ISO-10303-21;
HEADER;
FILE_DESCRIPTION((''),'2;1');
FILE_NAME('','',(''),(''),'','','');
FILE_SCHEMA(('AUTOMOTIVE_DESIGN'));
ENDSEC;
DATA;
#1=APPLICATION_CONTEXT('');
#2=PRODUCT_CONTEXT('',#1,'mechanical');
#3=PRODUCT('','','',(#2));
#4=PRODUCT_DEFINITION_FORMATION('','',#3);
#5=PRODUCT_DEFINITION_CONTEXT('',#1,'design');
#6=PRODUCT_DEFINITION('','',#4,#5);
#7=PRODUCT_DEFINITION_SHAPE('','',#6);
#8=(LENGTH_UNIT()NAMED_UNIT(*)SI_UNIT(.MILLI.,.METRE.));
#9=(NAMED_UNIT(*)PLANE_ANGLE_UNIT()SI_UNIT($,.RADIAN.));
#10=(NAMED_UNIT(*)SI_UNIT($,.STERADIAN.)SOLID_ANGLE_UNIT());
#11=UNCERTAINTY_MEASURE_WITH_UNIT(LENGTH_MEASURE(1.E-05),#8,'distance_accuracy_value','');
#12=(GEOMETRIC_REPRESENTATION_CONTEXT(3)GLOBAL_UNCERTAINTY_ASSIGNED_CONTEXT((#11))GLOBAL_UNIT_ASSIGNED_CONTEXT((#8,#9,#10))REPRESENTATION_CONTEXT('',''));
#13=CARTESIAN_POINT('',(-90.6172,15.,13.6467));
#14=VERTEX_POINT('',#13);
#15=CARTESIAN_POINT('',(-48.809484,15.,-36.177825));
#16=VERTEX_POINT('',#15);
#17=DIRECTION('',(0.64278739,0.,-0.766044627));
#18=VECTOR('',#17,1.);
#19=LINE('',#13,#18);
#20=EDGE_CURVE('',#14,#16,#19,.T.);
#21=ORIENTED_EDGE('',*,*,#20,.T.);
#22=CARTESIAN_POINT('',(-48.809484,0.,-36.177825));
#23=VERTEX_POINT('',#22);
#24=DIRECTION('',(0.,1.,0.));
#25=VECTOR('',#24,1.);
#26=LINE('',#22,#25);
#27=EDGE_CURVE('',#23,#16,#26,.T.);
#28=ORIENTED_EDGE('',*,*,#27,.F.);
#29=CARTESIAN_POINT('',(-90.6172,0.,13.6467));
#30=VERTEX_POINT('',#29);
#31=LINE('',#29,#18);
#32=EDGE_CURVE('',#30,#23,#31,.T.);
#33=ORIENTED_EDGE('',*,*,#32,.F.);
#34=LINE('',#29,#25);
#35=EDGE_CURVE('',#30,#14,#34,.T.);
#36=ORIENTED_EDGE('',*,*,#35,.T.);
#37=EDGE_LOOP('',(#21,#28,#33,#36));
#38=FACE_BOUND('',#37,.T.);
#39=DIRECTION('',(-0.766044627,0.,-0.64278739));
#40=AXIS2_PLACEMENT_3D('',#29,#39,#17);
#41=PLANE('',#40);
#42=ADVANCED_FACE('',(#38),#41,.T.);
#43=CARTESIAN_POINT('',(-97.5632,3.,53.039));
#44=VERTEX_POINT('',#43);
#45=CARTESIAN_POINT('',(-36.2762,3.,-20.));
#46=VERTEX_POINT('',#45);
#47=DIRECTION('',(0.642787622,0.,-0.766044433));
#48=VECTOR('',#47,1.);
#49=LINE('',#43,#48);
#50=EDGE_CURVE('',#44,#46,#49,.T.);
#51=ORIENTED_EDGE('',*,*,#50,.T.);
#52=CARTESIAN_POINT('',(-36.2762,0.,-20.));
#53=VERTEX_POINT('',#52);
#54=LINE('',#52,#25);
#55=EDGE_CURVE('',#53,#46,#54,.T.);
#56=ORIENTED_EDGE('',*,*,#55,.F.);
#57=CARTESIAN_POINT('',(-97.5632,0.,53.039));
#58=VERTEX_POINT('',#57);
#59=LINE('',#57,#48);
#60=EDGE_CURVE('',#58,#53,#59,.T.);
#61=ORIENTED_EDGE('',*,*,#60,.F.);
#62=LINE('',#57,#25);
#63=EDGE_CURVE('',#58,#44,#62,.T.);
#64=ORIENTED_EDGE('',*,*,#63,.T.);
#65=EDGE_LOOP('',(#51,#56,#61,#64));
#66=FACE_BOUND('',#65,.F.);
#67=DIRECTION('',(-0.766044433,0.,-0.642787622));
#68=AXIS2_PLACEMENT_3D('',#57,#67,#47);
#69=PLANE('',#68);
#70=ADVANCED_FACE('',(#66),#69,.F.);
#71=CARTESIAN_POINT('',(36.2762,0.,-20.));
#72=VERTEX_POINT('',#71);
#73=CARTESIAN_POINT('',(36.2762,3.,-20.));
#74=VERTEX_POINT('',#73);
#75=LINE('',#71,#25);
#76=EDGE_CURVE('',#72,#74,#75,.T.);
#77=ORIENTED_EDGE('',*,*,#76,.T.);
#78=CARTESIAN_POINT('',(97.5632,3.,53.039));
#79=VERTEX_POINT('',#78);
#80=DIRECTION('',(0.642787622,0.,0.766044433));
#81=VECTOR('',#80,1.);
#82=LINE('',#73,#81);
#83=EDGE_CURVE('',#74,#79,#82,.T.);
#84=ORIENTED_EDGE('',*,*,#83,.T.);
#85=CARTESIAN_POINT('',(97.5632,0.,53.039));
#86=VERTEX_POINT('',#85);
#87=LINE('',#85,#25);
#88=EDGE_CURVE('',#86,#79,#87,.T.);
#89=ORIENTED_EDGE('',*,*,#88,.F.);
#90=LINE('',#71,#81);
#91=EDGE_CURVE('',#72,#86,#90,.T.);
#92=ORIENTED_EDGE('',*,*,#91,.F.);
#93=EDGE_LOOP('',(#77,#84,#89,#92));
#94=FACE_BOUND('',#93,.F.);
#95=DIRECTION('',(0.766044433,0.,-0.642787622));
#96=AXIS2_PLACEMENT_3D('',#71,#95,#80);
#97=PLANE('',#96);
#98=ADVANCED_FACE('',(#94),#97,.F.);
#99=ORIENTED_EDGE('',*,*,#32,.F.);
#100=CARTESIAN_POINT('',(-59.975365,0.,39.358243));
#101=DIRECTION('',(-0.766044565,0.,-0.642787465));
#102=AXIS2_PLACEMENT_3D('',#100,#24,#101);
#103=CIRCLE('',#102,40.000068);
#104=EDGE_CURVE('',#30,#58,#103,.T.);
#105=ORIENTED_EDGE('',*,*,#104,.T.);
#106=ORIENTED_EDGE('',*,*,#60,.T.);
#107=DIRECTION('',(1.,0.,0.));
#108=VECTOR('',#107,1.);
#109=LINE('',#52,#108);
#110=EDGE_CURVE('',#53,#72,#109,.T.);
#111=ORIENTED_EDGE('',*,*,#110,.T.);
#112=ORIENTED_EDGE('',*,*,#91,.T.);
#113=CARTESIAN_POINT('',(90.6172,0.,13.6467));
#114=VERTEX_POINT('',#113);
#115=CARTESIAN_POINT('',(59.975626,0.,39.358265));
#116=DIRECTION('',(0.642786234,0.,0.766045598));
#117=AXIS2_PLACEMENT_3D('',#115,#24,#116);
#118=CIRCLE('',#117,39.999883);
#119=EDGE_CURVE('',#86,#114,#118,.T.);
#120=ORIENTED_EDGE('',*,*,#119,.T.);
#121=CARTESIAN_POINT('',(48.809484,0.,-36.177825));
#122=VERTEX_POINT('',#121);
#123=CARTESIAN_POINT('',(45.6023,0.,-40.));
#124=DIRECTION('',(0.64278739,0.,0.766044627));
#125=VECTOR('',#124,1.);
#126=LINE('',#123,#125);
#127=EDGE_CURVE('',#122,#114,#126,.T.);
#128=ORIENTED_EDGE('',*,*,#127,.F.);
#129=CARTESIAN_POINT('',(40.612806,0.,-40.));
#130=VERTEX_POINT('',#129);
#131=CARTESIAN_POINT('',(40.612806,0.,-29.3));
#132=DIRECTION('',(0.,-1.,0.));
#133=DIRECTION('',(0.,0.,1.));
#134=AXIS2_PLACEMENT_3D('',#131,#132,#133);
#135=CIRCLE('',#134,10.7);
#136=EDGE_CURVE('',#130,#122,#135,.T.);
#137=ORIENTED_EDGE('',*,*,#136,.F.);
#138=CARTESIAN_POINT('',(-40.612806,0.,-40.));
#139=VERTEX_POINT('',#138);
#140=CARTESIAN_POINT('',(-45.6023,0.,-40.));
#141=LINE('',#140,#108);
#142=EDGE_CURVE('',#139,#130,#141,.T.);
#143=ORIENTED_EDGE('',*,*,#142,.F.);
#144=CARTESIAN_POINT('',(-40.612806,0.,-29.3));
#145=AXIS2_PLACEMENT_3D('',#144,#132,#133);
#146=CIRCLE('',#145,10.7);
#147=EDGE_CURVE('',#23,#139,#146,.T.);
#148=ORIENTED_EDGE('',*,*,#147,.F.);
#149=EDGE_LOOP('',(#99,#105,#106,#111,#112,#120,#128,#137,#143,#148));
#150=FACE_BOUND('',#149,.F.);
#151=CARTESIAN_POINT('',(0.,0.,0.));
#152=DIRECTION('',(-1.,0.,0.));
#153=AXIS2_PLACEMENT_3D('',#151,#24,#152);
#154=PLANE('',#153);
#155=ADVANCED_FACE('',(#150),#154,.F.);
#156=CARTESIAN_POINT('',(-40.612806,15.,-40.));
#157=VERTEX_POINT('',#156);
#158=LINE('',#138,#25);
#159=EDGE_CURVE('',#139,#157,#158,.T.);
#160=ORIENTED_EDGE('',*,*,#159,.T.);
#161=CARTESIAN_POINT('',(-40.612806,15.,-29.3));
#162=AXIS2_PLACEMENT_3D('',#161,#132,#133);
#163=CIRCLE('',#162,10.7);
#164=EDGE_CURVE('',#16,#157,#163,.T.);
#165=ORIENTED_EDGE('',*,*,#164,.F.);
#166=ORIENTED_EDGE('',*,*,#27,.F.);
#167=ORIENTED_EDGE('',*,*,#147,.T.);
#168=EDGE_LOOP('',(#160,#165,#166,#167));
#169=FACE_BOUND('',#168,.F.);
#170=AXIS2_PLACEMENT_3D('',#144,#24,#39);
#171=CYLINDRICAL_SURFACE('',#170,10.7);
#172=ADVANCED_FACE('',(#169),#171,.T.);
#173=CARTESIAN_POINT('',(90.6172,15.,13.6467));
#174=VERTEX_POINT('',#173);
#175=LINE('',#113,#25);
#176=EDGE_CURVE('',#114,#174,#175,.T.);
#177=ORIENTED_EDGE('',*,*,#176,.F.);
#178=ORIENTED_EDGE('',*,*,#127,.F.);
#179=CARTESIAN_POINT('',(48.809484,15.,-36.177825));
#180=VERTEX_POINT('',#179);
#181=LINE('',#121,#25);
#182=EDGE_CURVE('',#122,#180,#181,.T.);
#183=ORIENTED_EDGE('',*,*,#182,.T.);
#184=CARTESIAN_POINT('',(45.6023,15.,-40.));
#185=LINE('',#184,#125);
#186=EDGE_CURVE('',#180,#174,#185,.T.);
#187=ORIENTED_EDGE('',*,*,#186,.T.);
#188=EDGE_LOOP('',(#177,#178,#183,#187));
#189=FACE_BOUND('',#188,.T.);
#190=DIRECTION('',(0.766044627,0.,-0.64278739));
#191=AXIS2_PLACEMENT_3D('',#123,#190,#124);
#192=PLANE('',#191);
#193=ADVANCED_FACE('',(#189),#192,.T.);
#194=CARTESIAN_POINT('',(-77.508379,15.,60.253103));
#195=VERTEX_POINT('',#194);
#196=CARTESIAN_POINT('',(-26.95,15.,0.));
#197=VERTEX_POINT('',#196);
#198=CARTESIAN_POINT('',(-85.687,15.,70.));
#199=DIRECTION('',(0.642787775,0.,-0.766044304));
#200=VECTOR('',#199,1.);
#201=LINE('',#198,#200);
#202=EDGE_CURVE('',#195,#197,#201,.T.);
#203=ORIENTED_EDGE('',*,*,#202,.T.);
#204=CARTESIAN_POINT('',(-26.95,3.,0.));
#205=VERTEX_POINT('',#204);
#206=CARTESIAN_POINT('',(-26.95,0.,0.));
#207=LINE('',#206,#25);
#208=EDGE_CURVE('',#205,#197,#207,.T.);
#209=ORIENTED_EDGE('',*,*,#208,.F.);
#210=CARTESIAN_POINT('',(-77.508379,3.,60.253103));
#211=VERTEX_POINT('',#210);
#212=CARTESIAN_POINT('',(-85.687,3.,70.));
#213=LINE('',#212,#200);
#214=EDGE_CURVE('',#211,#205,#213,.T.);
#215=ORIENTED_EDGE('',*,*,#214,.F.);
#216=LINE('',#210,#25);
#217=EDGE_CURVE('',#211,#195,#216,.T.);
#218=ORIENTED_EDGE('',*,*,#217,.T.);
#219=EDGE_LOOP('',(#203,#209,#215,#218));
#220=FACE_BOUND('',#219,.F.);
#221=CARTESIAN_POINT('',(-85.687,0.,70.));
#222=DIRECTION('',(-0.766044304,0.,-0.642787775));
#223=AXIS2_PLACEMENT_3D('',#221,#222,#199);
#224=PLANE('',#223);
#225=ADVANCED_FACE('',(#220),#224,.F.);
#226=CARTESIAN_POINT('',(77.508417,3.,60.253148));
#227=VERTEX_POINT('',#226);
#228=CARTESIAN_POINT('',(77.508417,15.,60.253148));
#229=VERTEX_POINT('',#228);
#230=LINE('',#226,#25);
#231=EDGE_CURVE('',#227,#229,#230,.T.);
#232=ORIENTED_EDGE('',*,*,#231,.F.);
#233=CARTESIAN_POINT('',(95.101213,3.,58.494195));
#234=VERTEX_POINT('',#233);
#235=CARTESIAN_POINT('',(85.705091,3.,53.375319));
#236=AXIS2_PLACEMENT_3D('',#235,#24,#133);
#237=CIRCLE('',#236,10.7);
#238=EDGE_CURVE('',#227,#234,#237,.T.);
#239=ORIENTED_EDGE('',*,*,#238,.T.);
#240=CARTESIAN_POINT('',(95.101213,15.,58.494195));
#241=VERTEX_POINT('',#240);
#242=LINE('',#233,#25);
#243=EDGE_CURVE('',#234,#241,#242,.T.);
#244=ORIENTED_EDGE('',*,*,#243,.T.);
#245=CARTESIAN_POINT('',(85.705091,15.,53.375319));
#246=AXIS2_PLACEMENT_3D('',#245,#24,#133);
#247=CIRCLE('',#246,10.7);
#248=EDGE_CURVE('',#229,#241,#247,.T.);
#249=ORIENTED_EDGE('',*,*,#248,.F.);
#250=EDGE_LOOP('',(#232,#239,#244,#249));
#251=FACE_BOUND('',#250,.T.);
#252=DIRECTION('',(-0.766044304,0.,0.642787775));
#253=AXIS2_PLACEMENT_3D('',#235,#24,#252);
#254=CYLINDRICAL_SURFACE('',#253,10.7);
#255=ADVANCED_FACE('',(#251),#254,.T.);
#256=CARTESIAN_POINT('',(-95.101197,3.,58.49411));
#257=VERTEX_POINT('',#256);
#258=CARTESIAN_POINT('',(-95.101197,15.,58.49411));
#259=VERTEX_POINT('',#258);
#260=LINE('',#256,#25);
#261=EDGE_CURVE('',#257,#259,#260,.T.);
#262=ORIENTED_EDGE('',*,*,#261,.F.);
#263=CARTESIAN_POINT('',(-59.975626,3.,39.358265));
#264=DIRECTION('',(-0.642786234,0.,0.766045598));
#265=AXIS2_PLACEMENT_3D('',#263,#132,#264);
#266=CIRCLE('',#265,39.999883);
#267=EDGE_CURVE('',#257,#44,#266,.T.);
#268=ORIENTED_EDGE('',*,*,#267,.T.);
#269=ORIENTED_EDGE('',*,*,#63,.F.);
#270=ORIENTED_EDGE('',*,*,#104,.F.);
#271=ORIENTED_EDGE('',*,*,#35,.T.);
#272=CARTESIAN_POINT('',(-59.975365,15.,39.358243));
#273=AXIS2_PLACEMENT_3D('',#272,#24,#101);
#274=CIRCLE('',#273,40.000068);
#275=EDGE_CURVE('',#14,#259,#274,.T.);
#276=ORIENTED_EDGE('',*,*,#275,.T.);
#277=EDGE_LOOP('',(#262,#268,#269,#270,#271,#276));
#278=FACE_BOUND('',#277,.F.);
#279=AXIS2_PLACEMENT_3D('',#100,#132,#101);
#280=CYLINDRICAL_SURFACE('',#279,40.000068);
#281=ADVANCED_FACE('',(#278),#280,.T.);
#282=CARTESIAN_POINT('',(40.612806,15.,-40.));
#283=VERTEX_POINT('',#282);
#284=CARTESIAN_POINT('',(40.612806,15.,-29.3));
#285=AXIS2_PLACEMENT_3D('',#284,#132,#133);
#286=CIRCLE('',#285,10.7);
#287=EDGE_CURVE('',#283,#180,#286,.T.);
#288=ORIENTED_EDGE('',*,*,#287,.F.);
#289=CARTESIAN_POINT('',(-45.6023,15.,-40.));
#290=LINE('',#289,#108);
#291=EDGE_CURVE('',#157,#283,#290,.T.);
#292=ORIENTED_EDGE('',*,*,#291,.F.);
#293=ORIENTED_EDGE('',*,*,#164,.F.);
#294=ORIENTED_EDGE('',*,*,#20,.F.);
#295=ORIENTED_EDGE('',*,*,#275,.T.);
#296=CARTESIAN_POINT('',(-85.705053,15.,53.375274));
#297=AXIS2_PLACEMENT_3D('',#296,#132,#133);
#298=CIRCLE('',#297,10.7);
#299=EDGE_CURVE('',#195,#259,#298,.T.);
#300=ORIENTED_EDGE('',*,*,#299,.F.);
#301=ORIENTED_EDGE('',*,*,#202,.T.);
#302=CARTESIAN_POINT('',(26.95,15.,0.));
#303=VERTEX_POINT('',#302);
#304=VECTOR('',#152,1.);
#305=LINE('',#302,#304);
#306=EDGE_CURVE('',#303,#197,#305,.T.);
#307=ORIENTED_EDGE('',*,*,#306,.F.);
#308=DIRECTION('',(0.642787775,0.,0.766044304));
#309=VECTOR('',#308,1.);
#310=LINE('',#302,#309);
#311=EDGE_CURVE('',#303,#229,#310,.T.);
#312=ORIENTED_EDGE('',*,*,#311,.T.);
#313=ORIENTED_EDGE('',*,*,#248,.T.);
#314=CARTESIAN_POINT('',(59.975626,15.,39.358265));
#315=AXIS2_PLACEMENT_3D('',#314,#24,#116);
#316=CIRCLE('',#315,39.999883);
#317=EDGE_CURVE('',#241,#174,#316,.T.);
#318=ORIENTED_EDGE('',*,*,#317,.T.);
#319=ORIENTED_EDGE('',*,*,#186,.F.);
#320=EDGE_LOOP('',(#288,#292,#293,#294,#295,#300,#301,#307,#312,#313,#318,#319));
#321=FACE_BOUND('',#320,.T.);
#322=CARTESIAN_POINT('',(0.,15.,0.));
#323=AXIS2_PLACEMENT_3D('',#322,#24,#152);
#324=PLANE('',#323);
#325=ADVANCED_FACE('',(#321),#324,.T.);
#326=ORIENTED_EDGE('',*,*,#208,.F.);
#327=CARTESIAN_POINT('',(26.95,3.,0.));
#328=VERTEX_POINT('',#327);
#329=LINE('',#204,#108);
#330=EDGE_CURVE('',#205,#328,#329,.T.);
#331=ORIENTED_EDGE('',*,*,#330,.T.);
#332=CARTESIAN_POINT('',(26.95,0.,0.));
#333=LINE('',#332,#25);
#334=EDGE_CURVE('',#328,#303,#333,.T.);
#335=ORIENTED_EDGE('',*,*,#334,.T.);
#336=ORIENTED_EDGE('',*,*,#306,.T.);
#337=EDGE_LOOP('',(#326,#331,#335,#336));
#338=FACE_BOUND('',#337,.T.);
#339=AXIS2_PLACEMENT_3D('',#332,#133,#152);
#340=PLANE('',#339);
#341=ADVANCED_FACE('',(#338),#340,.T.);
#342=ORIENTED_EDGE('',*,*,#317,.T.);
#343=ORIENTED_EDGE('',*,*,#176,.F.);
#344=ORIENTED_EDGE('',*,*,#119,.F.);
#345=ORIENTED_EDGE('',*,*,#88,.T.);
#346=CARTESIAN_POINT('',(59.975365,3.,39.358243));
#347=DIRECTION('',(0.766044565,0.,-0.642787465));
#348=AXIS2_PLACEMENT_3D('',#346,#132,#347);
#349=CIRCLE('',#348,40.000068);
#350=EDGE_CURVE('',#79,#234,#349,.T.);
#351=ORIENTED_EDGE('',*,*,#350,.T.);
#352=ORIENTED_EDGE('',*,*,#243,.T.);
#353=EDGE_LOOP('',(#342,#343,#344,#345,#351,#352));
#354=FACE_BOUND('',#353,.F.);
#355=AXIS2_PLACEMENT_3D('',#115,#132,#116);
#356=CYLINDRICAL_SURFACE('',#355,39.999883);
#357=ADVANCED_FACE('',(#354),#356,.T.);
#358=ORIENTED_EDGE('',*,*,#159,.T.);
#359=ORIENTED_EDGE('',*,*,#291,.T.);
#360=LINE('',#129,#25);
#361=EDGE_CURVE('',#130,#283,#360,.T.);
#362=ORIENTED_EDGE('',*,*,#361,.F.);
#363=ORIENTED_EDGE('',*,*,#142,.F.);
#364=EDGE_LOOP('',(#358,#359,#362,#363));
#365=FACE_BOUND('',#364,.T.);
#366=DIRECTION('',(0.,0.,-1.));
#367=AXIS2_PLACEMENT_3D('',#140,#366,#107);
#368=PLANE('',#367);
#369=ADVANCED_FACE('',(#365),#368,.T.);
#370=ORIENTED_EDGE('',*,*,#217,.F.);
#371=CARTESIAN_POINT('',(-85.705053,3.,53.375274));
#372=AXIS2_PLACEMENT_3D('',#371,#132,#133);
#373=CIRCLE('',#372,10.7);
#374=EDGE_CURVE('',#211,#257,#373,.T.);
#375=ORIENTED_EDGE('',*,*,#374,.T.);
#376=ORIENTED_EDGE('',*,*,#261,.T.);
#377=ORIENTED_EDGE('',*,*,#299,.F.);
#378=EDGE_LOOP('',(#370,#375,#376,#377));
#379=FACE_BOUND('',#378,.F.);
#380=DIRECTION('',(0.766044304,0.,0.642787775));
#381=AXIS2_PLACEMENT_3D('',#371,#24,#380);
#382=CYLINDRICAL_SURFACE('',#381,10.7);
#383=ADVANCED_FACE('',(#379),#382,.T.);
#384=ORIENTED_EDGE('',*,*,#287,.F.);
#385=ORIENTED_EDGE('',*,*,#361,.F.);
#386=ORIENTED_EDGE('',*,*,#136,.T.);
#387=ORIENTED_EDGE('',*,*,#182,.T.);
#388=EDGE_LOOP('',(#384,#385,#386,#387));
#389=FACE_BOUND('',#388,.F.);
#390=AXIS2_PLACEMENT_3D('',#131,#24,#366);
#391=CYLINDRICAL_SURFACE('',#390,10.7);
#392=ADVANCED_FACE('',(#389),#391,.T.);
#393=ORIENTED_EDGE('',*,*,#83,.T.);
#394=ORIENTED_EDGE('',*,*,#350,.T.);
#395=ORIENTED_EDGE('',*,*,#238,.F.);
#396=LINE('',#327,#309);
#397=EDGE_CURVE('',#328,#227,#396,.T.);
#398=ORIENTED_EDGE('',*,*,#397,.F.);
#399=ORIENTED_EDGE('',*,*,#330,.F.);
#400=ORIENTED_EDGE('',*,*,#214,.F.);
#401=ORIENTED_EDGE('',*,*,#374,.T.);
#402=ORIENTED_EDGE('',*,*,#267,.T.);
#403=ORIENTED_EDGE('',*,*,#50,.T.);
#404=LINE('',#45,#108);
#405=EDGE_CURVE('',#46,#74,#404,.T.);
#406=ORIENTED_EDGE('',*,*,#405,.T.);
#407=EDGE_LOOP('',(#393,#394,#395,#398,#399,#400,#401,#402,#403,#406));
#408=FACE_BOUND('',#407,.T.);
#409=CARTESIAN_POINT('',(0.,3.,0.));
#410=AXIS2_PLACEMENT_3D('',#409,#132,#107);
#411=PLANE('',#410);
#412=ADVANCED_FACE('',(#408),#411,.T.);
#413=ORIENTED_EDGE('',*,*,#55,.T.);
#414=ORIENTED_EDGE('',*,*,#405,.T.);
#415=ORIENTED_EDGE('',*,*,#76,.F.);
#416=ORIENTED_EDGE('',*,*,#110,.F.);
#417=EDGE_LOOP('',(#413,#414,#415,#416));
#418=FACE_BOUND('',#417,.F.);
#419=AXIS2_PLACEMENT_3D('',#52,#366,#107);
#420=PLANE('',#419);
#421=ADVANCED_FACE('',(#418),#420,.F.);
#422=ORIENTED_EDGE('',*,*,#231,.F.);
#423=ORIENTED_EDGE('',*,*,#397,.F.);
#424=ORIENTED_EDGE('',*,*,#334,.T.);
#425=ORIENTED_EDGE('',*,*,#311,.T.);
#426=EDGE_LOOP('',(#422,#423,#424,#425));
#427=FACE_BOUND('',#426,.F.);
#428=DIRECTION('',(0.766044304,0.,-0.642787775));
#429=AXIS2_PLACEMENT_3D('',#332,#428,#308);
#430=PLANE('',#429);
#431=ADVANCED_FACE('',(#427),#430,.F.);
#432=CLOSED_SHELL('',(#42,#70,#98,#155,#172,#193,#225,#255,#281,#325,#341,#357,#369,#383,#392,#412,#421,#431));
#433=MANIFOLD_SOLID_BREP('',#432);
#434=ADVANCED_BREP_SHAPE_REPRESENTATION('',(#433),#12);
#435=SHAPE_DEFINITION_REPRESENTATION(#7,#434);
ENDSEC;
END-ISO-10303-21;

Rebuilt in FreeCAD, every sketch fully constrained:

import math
import FreeCAD as App
import Part
import Sketcher
Q = App.Units.Quantity


def edges_at(feature, points):
    """Names of the edges that pass closest to the given points."""
    edges = feature.Shape.Edges
    near = lambda p: min(range(len(edges)), key=lambda i: edges[i].distToShape(Part.Vertex(*p))[0])
    return sorted({f"Edge{near(p) + 1}" for p in points})

doc = App.newDocument("Part")
params = doc.addObject("Spreadsheet::Sheet", "Params")
for row, (alias, value) in enumerate([
    ("sketch1_radius", "40 mm"),
    ("sketch1_width", "53.9 mm"),
    ("pad1_length", "15 mm"),
    ("sketch2_radius", "40 mm"),
    ("sketch2_width", "53.9 mm"),
    ("pocket1_length", "3 mm"),
    ("fillet_radius", "10.7 mm"),
], start=1):
    params.set(f"A{row}", alias)
    params.set(f"B{row}", "=" + value)
    params.setAlias(f"B{row}", alias)

body = doc.addObject("PartDesign::Body", "Body")

# Sketch on XZ plane
sketch1 = body.newObject("Sketcher::SketchObject", "Sketch")
sketch1.AttachmentSupport = (doc.getObject("XZ_Plane"), [""])
sketch1.MapMode = "FlatFace"
sketch1.addGeometry([
    Part.LineSegment(App.Vector(-26.95, 0, 0), App.Vector(26.95, 0, 0)),  # 0
    Part.LineSegment(App.Vector(26.95, 0, 0), App.Vector(85.687, 70, 0)),  # 1
    Part.ArcOfCircle(Part.Circle(App.Vector(59.9755, 39.3582, 0), App.Vector(0, 0, 1), 40.000014), math.radians(-40.000067), math.radians(50.000025)),  # 2
    Part.LineSegment(App.Vector(90.6172, 13.6467, 0), App.Vector(45.6023, -40, 0)),  # 3
    Part.LineSegment(App.Vector(45.6023, -40, 0), App.Vector(-45.6023, -40, 0)),  # 4
    Part.LineSegment(App.Vector(-45.6023, -40, 0), App.Vector(-90.6172, 13.6467, 0)),  # 5
    Part.ArcOfCircle(Part.Circle(App.Vector(-59.9755, 39.3582, 0), App.Vector(0, 0, 1), 39.999938), math.radians(129.999975), math.radians(220.000067)),  # 6
    Part.LineSegment(App.Vector(-85.687, 70, 0), App.Vector(-26.95, 0, 0)),  # 7
], False)
sketch1.addConstraint([
    Sketcher.Constraint("Coincident", 0, 2, 1, 1),
    Sketcher.Constraint("Coincident", 1, 2, 2, 2),
    Sketcher.Constraint("Tangent", 2, 1, 3, 1),
    Sketcher.Constraint("Coincident", 3, 2, 4, 1),
    Sketcher.Constraint("Coincident", 4, 2, 5, 1),
    Sketcher.Constraint("Tangent", 5, 2, 6, 2),
    Sketcher.Constraint("Coincident", 6, 1, 7, 1),
    Sketcher.Constraint("Coincident", 7, 2, 0, 1),
    Sketcher.Constraint("Horizontal", 0),
    Sketcher.Constraint("Horizontal", 4),
    Sketcher.Constraint("Equal", 2, 6),
    Sketcher.Constraint("Symmetric", 0, 2, 7, 2, -1, 1),
    Sketcher.Constraint("Symmetric", 2, 3, 6, 3, -2),
    Sketcher.Constraint("Parallel", 1, 3),
    Sketcher.Constraint("Parallel", 5, 7),
    Sketcher.Constraint("Horizontal", 2, 1, 5, 2),
    Sketcher.Constraint("Radius", 2, 40.0),
    Sketcher.Constraint("Angle", 3, Q("-130 deg")),
    Sketcher.Constraint("DistanceX", 0, 1, 0, 2, 53.9),
    Sketcher.Constraint("DistanceY", -1, 1, 1, 2, 70.0),
    Sketcher.Constraint("DistanceY", 3, 2, -1, 1, 40.0),
    Sketcher.Constraint("DistanceX", 4, 2, 4, 1, 91.2046),
])
sketch1.setExpression("Constraints[16]", "Params.sketch1_radius")
sketch1.setExpression("Constraints[18]", "Params.sketch1_width")
pad1 = body.newObject("PartDesign::Pad", "Pad")
pad1.Profile = sketch1
pad1.setExpression("Length", "Params.pad1_length")
pad1.Reversed = True

# Sketch on XZ plane
sketch2 = body.newObject("Sketcher::SketchObject", "Sketch001")
sketch2.AttachmentSupport = (doc.getObject("XZ_Plane"), [""])
sketch2.MapMode = "FlatFace"
sketch2.addGeometry([
    Part.LineSegment(App.Vector(26.95, 0, 0), App.Vector(-26.95, 0, 0)),  # 0
    Part.LineSegment(App.Vector(-26.95, 0, 0), App.Vector(-85.687, 70, 0)),  # 1
    Part.ArcOfCircle(Part.Circle(App.Vector(-59.9755, 39.3582, 0), App.Vector(0, 0, 1), 40.000014), math.radians(129.999975), math.radians(160.000005)),  # 2
    Part.LineSegment(App.Vector(-97.5632, 53.039, 0), App.Vector(-36.2762, -20, 0)),  # 3
    Part.LineSegment(App.Vector(-36.2762, -20, 0), App.Vector(36.2762, -20, 0)),  # 4
    Part.LineSegment(App.Vector(36.2762, -20, 0), App.Vector(97.5632, 53.039, 0)),  # 5
    Part.ArcOfCircle(Part.Circle(App.Vector(59.9755, 39.3582, 0), App.Vector(0, 0, 1), 39.999938), math.radians(19.999995), math.radians(50.000025)),  # 6
    Part.LineSegment(App.Vector(85.687, 70, 0), App.Vector(26.95, 0, 0)),  # 7
], False)
sketch2.addConstraint([
    Sketcher.Constraint("Coincident", 0, 2, 1, 1),
    Sketcher.Constraint("Coincident", 1, 2, 2, 1),
    Sketcher.Constraint("Coincident", 2, 2, 3, 1),
    Sketcher.Constraint("Coincident", 3, 2, 4, 1),
    Sketcher.Constraint("Coincident", 4, 2, 5, 1),
    Sketcher.Constraint("Coincident", 5, 2, 6, 1),
    Sketcher.Constraint("Coincident", 6, 2, 7, 1),
    Sketcher.Constraint("Coincident", 7, 2, 0, 1),
    Sketcher.Constraint("Horizontal", 0),
    Sketcher.Constraint("Horizontal", 4),
    Sketcher.Constraint("Equal", 2, 6),
    Sketcher.Constraint("Symmetric", 0, 2, 7, 2, -1, 1),
    Sketcher.Constraint("Symmetric", 2, 3, 6, 3, -2),
    Sketcher.Constraint("Parallel", 1, 3),
    Sketcher.Constraint("Parallel", 5, 7),
    Sketcher.Constraint("Horizontal", 2, 2, 5, 2),
    Sketcher.Constraint("Horizontal", 1, 2, 6, 2),
    Sketcher.Constraint("DistanceY", 3, 2, -1, 1, 20.0),
    Sketcher.Constraint("Radius", 2, 40.0),
    Sketcher.Constraint("Angle", 1, Q("130 deg")),
    Sketcher.Constraint("DistanceX", 0, 2, 0, 1, 53.9),
    Sketcher.Constraint("DistanceY", -1, 1, 1, 2, 70.0),
    Sketcher.Constraint("DistanceX", 4, 1, 4, 2, 72.5524),
    Sketcher.Constraint("DistanceY", -1, 1, 2, 2, 53.039),
])
sketch2.setExpression("Constraints[18]", "Params.sketch2_radius")
sketch2.setExpression("Constraints[20]", "Params.sketch2_width")
pocket1 = body.newObject("PartDesign::Pocket", "Pocket")
pocket1.Profile = sketch2
pocket1.setExpression("Length", "Params.pocket1_length")
doc.recompute()

fillet = body.newObject("PartDesign::Fillet", "Fillet")
fillet.Base = (pocket1, edges_at(pocket1, [
    (-85.687, 9, 70),
    (85.687, 9, 70),
    (-45.602, 7.5, -40),
    (45.602, 7.5, -40),
]))
fillet.setExpression("Radius", "Params.fillet_radius")

doc.recompute()
